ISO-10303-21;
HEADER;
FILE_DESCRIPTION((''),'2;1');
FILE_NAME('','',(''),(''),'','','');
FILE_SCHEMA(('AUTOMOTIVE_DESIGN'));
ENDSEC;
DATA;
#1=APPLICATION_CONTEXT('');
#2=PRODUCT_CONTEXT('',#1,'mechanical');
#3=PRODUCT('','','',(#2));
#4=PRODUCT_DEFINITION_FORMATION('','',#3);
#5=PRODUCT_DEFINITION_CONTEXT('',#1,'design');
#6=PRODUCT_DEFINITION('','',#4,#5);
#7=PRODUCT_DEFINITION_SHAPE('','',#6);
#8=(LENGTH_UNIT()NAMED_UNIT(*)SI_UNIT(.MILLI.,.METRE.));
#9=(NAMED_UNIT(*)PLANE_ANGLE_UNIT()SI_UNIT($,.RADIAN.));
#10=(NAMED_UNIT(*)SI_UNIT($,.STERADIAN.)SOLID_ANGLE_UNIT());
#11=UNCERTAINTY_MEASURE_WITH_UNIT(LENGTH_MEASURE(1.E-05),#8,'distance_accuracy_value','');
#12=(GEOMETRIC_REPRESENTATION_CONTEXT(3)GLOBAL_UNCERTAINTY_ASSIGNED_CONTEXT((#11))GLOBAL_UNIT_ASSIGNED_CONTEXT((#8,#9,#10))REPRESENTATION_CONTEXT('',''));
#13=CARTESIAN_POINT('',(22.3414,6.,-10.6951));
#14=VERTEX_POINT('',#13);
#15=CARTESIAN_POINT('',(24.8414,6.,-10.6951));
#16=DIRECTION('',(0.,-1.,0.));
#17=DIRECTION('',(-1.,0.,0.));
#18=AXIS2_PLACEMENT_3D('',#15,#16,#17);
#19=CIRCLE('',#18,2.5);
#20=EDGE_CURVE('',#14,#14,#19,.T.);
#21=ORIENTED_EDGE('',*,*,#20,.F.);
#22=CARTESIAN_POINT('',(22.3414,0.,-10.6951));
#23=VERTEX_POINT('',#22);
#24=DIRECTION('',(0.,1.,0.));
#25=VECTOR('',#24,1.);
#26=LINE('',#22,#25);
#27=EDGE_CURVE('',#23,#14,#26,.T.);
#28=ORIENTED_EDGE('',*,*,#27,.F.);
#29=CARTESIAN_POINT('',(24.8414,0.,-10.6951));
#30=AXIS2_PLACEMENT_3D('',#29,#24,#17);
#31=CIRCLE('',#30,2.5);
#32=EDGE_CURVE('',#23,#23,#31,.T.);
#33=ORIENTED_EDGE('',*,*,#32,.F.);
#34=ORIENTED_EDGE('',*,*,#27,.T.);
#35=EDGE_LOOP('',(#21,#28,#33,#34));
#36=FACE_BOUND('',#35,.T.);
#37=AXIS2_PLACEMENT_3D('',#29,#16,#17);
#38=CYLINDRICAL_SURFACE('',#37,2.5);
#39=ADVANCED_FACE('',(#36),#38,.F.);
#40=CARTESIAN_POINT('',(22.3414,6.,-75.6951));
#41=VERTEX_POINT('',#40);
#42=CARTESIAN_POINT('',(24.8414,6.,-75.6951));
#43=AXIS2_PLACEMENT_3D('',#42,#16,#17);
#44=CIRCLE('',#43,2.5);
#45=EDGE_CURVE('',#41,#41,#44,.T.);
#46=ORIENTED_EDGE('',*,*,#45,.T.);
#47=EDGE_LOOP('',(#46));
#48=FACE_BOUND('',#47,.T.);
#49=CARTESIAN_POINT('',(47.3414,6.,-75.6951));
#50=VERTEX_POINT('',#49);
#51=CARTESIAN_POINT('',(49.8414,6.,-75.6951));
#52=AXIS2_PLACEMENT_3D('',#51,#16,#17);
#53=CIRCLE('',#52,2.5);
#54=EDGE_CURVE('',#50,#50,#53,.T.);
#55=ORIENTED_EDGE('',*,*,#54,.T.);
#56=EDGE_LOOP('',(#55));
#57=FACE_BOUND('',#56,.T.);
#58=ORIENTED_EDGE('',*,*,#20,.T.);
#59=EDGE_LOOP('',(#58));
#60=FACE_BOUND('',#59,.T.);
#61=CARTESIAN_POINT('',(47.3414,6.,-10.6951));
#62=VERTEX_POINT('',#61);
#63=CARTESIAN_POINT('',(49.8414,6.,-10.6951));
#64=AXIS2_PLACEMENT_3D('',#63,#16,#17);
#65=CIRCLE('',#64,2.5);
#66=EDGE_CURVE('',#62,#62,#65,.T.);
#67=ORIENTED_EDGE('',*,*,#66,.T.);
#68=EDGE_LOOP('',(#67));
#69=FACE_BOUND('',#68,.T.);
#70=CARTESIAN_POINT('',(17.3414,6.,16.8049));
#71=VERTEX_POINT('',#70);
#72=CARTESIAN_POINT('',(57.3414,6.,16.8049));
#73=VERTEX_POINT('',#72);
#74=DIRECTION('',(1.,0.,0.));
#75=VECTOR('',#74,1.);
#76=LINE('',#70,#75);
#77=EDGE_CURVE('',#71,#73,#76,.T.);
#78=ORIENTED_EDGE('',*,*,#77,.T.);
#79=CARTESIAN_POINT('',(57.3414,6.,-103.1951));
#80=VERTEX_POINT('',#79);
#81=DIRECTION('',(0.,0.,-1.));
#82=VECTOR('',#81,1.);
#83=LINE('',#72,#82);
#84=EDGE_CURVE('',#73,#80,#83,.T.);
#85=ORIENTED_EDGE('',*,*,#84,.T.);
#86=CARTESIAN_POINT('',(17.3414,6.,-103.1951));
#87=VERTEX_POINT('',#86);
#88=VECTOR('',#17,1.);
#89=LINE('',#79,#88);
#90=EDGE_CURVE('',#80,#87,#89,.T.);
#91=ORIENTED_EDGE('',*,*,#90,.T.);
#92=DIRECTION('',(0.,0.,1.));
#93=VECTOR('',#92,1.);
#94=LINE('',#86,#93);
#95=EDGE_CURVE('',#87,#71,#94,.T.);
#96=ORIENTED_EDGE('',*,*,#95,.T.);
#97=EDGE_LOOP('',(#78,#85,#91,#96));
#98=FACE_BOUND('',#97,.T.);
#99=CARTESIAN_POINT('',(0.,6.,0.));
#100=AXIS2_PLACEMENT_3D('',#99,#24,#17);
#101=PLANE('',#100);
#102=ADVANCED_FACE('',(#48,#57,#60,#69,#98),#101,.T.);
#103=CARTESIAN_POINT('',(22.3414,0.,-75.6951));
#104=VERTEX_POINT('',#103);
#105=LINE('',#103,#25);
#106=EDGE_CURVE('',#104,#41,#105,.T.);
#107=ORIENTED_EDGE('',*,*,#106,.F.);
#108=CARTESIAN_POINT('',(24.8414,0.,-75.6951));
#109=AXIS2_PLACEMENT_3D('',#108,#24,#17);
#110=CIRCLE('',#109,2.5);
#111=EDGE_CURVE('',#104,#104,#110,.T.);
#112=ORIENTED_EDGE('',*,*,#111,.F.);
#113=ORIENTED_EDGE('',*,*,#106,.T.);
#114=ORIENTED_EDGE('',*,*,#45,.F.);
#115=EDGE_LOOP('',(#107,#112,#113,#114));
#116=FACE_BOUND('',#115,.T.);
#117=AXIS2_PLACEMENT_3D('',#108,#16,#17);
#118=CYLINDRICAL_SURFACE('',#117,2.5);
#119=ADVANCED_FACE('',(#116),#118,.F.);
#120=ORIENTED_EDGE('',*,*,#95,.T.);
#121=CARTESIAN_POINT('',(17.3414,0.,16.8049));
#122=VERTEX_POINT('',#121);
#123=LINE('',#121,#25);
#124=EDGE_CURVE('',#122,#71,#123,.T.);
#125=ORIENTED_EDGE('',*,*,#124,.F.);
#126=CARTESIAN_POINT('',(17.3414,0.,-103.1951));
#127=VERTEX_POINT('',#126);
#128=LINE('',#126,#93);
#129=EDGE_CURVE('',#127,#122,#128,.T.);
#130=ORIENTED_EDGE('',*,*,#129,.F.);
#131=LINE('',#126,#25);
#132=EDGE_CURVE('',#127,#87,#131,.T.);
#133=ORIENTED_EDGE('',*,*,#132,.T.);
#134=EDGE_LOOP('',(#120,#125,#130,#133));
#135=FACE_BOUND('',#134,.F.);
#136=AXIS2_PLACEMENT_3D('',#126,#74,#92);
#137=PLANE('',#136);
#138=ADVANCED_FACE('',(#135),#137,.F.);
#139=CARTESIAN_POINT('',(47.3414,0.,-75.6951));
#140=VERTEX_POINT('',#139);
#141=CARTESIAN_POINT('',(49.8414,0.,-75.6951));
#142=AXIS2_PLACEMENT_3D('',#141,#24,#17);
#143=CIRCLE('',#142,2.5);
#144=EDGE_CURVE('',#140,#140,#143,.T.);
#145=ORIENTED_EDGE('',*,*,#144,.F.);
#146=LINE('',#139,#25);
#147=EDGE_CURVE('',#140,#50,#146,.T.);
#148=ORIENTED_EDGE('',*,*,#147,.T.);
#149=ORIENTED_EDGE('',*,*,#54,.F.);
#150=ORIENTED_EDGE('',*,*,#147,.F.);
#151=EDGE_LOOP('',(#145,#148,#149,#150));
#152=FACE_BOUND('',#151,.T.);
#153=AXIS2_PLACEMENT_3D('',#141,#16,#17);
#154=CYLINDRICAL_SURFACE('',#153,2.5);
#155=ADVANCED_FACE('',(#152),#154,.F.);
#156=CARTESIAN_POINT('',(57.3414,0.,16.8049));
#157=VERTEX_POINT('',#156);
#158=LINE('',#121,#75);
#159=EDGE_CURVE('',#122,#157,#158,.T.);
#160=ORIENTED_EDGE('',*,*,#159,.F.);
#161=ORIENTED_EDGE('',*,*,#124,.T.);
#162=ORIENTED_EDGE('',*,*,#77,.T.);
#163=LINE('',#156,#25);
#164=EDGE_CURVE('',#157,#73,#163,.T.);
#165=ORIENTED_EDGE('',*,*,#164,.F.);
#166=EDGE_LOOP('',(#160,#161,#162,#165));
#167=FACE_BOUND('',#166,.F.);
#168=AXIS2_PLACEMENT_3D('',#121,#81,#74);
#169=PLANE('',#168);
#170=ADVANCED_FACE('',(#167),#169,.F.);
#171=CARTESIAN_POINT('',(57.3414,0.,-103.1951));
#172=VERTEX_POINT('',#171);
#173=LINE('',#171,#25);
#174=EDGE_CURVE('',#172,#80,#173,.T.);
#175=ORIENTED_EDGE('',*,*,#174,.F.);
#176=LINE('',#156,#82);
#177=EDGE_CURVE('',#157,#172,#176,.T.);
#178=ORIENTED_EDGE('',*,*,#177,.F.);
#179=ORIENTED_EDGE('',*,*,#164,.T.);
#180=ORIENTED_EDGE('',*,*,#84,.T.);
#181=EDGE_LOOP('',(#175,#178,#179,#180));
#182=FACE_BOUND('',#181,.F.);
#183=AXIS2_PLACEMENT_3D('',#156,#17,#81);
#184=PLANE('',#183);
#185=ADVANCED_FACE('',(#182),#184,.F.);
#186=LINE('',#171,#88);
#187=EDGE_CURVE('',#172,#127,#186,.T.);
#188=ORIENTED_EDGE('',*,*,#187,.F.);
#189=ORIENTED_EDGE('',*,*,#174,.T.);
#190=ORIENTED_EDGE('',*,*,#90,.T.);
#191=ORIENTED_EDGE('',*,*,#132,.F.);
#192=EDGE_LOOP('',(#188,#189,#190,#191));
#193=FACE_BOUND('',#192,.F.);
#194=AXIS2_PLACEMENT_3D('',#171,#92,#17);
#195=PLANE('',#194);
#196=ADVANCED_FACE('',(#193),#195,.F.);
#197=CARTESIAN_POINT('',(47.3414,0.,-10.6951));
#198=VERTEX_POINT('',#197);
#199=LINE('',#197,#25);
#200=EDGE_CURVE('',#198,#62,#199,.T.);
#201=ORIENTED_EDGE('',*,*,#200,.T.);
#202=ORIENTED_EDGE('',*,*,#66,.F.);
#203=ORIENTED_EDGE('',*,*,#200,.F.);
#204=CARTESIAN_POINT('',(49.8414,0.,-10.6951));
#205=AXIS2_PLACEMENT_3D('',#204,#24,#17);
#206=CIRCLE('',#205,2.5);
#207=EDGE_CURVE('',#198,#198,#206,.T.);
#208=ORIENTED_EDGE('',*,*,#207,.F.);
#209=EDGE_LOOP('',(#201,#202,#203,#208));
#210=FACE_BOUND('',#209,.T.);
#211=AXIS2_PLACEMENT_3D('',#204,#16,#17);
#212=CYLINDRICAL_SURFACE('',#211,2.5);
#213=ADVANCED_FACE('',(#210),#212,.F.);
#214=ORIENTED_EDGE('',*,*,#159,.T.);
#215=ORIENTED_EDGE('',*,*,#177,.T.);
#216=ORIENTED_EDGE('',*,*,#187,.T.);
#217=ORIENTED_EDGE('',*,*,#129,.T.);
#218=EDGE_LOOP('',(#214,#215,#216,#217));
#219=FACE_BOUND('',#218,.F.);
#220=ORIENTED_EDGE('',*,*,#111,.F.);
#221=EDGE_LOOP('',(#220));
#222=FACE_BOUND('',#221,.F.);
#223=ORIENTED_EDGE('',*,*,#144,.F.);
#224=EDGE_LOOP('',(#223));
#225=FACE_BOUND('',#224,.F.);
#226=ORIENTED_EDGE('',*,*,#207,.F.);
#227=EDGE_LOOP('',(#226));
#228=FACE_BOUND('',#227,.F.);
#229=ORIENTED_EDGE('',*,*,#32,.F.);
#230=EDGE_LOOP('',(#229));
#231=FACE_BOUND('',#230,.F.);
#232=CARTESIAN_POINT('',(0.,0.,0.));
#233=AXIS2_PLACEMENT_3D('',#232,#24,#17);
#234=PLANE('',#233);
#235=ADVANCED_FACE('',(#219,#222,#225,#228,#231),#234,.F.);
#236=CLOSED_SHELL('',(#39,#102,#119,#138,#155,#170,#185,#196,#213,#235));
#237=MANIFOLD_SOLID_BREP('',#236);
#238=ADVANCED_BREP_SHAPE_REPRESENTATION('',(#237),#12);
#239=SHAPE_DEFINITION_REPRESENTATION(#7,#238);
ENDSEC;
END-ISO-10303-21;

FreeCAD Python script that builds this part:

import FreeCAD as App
import Part
import Sketcher
from FreeCAD import Vector
Q = App.Units.Quantity

doc = App.newDocument("Part")
params = doc.addObject("Spreadsheet::Sheet", "Params")
for row, (alias, value) in enumerate([
    ("sketch1_diameter", "5 mm"),
    ("sketch1_width", "40 mm"),
    ("sketch1_height", "120 mm"),
    ("pad1_length", "6 mm"),
], start=1):
    params.set(f"A{row}", alias)
    params.set(f"B{row}", "=" + value)
    params.setAlias(f"B{row}", alias)

body = doc.addObject("PartDesign::Body", "Body")

# Sketch on XZ plane
sketch1 = body.newObject("Sketcher::SketchObject", "Sketch")
sketch1.AttachmentSupport = (doc.getObject("XZ_Plane"), [""])
sketch1.MapMode = "FlatFace"
sketch1.addGeometry([
    Part.LineSegment(Vector(17.3, -103.2, 0), Vector(17.3, 16.8, 0)),  # 0
    Part.LineSegment(Vector(17.3, 16.8, 0), Vector(57.3, 16.8, 0)),  # 1
    Part.LineSegment(Vector(57.3, 16.8, 0), Vector(57.3, -103.2, 0)),  # 2
    Part.LineSegment(Vector(57.3, -103.2, 0), Vector(17.3, -103.2, 0)),  # 3
    Part.Circle(Vector(49.8, -10.7, 0), Vector(0, 0, 1), 2.5),  # 4
    Part.Circle(Vector(49.8, -75.7, 0), Vector(0, 0, 1), 2.5),  # 5
    Part.Circle(Vector(24.8, -75.7, 0), Vector(0, 0, 1), 2.5),  # 6
    Part.Circle(Vector(24.8, -10.7, 0), Vector(0, 0, 1), 2.5),  # 7
], False)
sketch1.addConstraint([
    Sketcher.Constraint("Coincident", 0, 2, 1, 1),
    Sketcher.Constraint("Coincident", 1, 2, 2, 1),
    Sketcher.Constraint("Coincident", 2, 2, 3, 1),
    Sketcher.Constraint("Coincident", 3, 2, 0, 1),
    Sketcher.Constraint("Vertical", 0),
    Sketcher.Constraint("Horizontal", 1),
    Sketcher.Constraint("Vertical", 2),
    Sketcher.Constraint("Horizontal", 3),
    Sketcher.Constraint("Equal", 4, 5),
    Sketcher.Constraint("Equal", 5, 6),
    Sketcher.Constraint("Equal", 6, 7),
    Sketcher.Constraint("Horizontal", 5, 3, 6, 3),
    Sketcher.Constraint("Horizontal", 4, 3, 7, 3),
    Sketcher.Constraint("Vertical", 4, 3, 5, 3),
    Sketcher.Constraint("Vertical", 6, 3, 7, 3),
    Sketcher.Constraint("Diameter", 4, Q("5 mm")),
    Sketcher.Constraint("DistanceX", 1, 1, 1, 2, Q("40 mm")),
    Sketcher.Constraint("DistanceY", 0, 1, 0, 2, Q("120 mm")),
    Sketcher.Constraint("DistanceY", 5, 3, 4, 3, Q("65 mm")),
    Sketcher.Constraint("DistanceX", 6, 3, 5, 3, Q("25 mm")),
    Sketcher.Constraint("DistanceX", 0, 2, 7, 3, Q("7.5 mm")),
    Sketcher.Constraint("DistanceY", 7, 3, 0, 2, Q("27.5 mm")),
    Sketcher.Constraint("DistanceY", 4, 3, -1, 1, Q("10.695 mm")),
    Sketcher.Constraint("DistanceX", -1, 1, 4, 3, Q("49.8414 mm")),
])
sketch1.setExpression("Constraints[15]", "Params.sketch1_diameter")
sketch1.setExpression("Constraints[16]", "Params.sketch1_width")
sketch1.setExpression("Constraints[17]", "Params.sketch1_height")
pad1 = body.newObject("PartDesign::Pad", "Pad")
pad1.Profile = sketch1
pad1.setExpression("Length", "Params.pad1_length")
pad1.Reversed = True

doc.recompute()
